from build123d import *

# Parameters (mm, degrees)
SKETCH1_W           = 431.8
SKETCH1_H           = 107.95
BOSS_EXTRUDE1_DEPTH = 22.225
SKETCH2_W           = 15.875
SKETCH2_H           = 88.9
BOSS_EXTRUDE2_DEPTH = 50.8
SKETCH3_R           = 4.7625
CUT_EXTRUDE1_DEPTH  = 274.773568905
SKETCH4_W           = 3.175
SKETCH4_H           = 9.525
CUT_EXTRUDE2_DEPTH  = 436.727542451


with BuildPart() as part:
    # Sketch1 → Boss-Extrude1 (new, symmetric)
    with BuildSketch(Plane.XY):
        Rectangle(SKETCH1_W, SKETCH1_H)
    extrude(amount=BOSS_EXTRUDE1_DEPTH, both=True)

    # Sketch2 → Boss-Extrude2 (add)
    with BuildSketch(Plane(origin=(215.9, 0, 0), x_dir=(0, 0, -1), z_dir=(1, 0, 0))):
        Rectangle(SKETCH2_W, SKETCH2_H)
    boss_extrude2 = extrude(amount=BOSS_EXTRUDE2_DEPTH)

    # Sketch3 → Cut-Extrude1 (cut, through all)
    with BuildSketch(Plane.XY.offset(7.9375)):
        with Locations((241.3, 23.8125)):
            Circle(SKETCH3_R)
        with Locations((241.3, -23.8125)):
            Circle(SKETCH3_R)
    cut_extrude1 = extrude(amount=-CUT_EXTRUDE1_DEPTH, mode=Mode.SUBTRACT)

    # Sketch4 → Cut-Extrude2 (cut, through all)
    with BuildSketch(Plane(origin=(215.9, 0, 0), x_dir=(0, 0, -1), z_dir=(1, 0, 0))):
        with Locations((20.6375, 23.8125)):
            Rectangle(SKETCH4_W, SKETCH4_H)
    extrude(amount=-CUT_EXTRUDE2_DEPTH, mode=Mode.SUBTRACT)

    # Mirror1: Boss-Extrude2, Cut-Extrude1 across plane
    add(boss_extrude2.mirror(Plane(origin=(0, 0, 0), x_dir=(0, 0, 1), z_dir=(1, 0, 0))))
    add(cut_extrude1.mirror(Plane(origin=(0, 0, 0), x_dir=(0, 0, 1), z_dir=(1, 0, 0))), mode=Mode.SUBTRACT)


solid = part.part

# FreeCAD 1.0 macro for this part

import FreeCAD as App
import Part
import Sketcher

V = App.Vector
Q = App.Units.Quantity


def add_polygon(sketch, points):
    """Adds a closed chain of lines whose ends are joined by coincident constraints."""
    first, n = sketch.GeometryCount, len(points)
    for a, b in zip(points, points[1:] + points[:1]):
        sketch.addGeometry(Part.LineSegment(App.Vector(*a, 0), App.Vector(*b, 0)), False)
    for i in range(n):
        sketch.addConstraint(Sketcher.Constraint("Coincident", first + i, 2, first + (i + 1) % n, 1))

doc = App.newDocument("Part")
body = doc.addObject("PartDesign::Body", "Body")

# Sketch on XY plane
sketch1 = doc.addObject("Sketcher::SketchObject", "Sketch")
body.addObject(sketch1)
sketch1.AttachmentSupport = (doc.XY_Plane, [""])
sketch1.MapMode = "FlatFace"
add_polygon(sketch1, [(-216, 54), (-216, -54), (216, -54), (216, 54)])  # lines 0-3
sketch1.addConstraint(Sketcher.Constraint("Vertical", 0))
sketch1.addConstraint(Sketcher.Constraint("Horizontal", 1))
sketch1.addConstraint(Sketcher.Constraint("Vertical", 2))
sketch1.addConstraint(Sketcher.Constraint("Horizontal", 3))
sketch1.addConstraint(Sketcher.Constraint("Symmetric", 0, 2, 2, 2, -1, 1))
sketch1.addConstraint(Sketcher.Constraint("DistanceX", 1, 1, 1, 2, Q("17 in")))
sketch1.addConstraint(Sketcher.Constraint("DistanceY", 0, 2, 0, 1, Q("4.25 in")))
pad1 = doc.addObject("PartDesign::Pad", "Pad")
body.addObject(pad1)
pad1.Profile = sketch1
pad1.Length = Q("1.75 in")
pad1.Midplane = True

# Sketch on YZ plane
sketch2 = doc.addObject("Sketcher::SketchObject", "Sketch001")
body.addObject(sketch2)
sketch2.AttachmentSupport = (doc.YZ_Plane, [""])
sketch2.MapMode = "FlatFace"
sketch2.AttachmentOffset = App.Placement(V(0, 0, 8.5 * 25.4), App.Rotation())
add_polygon(sketch2, [(44, 8), (-44, 8), (-44, -8), (44, -8)])  # lines 0-3
sketch2.addConstraint(Sketcher.Constraint("Horizontal", 0))
sketch2.addConstraint(Sketcher.Constraint("Vertical", 1))
sketch2.addConstraint(Sketcher.Constraint("Horizontal", 2))
sketch2.addConstraint(Sketcher.Constraint("Vertical", 3))
sketch2.addConstraint(Sketcher.Constraint("Symmetric", 0, 2, 2, 2, -1, 1))
sketch2.addConstraint(Sketcher.Constraint("DistanceX", 0, 2, 0, 1, Q("3.5 in")))
sketch2.addConstraint(Sketcher.Constraint("DistanceY", 1, 2, 1, 1, Q("0.625 in")))
pad2 = doc.addObject("PartDesign::Pad", "Pad001")
body.addObject(pad2)
pad2.Profile = sketch2
pad2.Length = Q("2 in")

# Sketch on XY plane
sketch3 = doc.addObject("Sketcher::SketchObject", "Sketch002")
body.addObject(sketch3)
sketch3.AttachmentSupport = (doc.XY_Plane, [""])
sketch3.MapMode = "FlatFace"
sketch3.AttachmentOffset = App.Placement(V(0, 0, 0.3125 * 25.4), App.Rotation())
sketch3.addGeometry(Part.Circle(V(241.3, 23.8, 0), V(0, 0, 1), 4.8), False)
sketch3.addGeometry(Part.Circle(V(241.3, -23.8, 0), V(0, 0, 1), 4.8), False)
sketch3.addConstraint(Sketcher.Constraint("Equal", 0, 1))
sketch3.addConstraint(Sketcher.Constraint("Symmetric", 0, 3, 1, 3, -1))
sketch3.addConstraint(Sketcher.Constraint("Diameter", 0, Q("0.375 in")))
sketch3.addConstraint(Sketcher.Constraint("DistanceX", -1, 1, 0, 3, Q("9.5 in")))
sketch3.addConstraint(Sketcher.Constraint("DistanceY", -1, 1, 0, 3, Q("0.9375 in")))
pocket1 = doc.addObject("PartDesign::Pocket", "Pocket")
body.addObject(pocket1)
pocket1.Profile = sketch3
pocket1.Type = "ThroughAll"

# Sketch on YZ plane
sketch4 = doc.addObject("Sketcher::SketchObject", "Sketch003")
body.addObject(sketch4)
sketch4.AttachmentSupport = (doc.YZ_Plane, [""])
sketch4.MapMode = "FlatFace"
sketch4.AttachmentOffset = App.Placement(V(0, 0, 8.5 * 25.4), App.Rotation())
add_polygon(sketch4, [(28.6, -19.1), (19.1, -19.1), (19.1, -22.2), (28.6, -22.2)])  # lines 0-3
sketch4.addConstraint(Sketcher.Constraint("Horizontal", 0))
sketch4.addConstraint(Sketcher.Constraint("Vertical", 1))
sketch4.addConstraint(Sketcher.Constraint("Horizontal", 2))
sketch4.addConstraint(Sketcher.Constraint("Vertical", 3))
sketch4.addConstraint(Sketcher.Constraint("DistanceX", 0, 2, 0, 1, Q("0.375 in")))
sketch4.addConstraint(Sketcher.Constraint("DistanceY", 1, 2, 1, 1, Q("0.125 in")))
sketch4.addConstraint(Sketcher.Constraint("DistanceX", -1, 1, 0, 2, Q("0.75 in")))
sketch4.addConstraint(Sketcher.Constraint("DistanceY", 0, 2, -1, 1, Q("0.75 in")))
pocket2 = doc.addObject("PartDesign::Pocket", "Pocket001")
body.addObject(pocket2)
pocket2.Profile = sketch4
pocket2.Type = "ThroughAll"
doc.recompute()

mirrored = doc.addObject("PartDesign::Mirrored", "Mirrored")
body.addObject(mirrored)
mirrored.Originals = [pad2, pocket1]
mirrored.MirrorPlane = (doc.YZ_Plane, [""])
body.Tip = mirrored

doc.recompute()
